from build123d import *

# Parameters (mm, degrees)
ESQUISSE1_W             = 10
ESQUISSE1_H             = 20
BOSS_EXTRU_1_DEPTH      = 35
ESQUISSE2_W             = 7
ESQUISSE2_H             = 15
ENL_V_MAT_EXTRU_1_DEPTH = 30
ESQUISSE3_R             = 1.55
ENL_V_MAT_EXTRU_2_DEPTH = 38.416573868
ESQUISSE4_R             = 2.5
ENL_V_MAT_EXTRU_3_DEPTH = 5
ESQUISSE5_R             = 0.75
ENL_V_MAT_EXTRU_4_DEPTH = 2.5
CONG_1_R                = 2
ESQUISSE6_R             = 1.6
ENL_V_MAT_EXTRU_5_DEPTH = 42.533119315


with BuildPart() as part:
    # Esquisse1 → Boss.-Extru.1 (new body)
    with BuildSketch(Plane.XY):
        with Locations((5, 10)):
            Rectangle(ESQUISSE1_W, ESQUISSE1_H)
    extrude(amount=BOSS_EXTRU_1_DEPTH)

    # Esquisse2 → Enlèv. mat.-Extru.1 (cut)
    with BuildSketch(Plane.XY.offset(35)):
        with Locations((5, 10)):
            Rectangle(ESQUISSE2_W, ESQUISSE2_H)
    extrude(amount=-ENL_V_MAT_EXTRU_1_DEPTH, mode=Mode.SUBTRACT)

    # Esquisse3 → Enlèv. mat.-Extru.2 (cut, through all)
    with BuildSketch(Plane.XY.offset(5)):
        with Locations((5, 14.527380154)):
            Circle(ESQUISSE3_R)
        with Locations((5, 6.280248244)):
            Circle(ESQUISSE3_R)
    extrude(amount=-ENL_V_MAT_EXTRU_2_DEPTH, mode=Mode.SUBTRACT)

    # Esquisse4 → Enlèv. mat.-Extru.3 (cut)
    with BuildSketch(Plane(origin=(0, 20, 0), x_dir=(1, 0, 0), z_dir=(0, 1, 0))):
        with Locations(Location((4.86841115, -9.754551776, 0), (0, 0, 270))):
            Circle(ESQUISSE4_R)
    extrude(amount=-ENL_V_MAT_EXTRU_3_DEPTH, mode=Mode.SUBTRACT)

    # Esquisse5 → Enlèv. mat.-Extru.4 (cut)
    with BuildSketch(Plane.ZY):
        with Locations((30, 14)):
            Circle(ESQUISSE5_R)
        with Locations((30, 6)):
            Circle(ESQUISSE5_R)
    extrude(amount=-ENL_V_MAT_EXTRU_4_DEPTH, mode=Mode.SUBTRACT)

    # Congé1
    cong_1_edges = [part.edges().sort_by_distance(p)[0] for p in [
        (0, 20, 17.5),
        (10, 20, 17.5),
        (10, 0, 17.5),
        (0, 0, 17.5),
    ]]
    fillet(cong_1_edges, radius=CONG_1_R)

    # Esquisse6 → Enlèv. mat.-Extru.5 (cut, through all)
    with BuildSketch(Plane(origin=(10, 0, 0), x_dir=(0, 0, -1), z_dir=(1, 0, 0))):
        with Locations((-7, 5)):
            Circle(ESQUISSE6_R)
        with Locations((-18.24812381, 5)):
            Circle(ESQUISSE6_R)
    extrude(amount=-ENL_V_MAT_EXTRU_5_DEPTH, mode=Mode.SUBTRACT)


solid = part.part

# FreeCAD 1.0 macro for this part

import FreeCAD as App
import Part
import Sketcher
Q = App.Units.Quantity


def edges_at(feature, points):
    """Names of the edges that pass closest to the given points."""
    edges = feature.Shape.Edges
    near = lambda p: min(range(len(edges)), key=lambda i: edges[i].distToShape(Part.Vertex(*p))[0])
    return sorted({f"Edge{near(p) + 1}" for p in points})

doc = App.newDocument("Part")
body = doc.addObject("PartDesign::Body", "Body")

# Sketch on XY plane
sketch1 = body.newObject("Sketcher::SketchObject", "Sketch")
sketch1.AttachmentSupport = (doc.getObject("XY_Plane"), [""])
sketch1.MapMode = "FlatFace"
sketch1.addGeometry([
    Part.LineSegment(App.Vector(0, 20, 0), App.Vector(0, 0, 0)),
    Part.LineSegment(App.Vector(0, 0, 0), App.Vector(10, 0, 0)),
    Part.LineSegment(App.Vector(10, 0, 0), App.Vector(10, 20, 0)),
    Part.LineSegment(App.Vector(10, 20, 0), App.Vector(0, 20, 0)),
], False)
sketch1.addConstraint([
    Sketcher.Constraint("Coincident", 0, 2, 1, 1),
    Sketcher.Constraint("Coincident", 1, 2, 2, 1),
    Sketcher.Constraint("Coincident", 2, 2, 3, 1),
    Sketcher.Constraint("Coincident", 3, 2, 0, 1),
    Sketcher.Constraint("Vertical", 0),
    Sketcher.Constraint("Horizontal", 1),
    Sketcher.Constraint("Vertical", 2),
    Sketcher.Constraint("Horizontal", 3),
    Sketcher.Constraint("Coincident", 0, 2, -1, 1),
    Sketcher.Constraint("DistanceX", 1, 1, 1, 2, Q("10 mm")),
    Sketcher.Constraint("DistanceY", 0, 2, 0, 1, Q("20 mm")),
])
pad1 = body.newObject("PartDesign::Pad", "Pad")
pad1.Profile = sketch1
pad1.Length = 35

# Sketch on XY plane
sketch2 = body.newObject("Sketcher::SketchObject", "Sketch001")
sketch2.AttachmentSupport = (doc.getObject("XY_Plane"), [""])
sketch2.MapMode = "FlatFace"
sketch2.AttachmentOffset = App.Placement(App.Vector(0, 0, 35), App.Rotation())
sketch2.addGeometry([
    Part.LineSegment(App.Vector(1.5, 17.5, 0), App.Vector(1.5, 2.5, 0)),
    Part.LineSegment(App.Vector(1.5, 2.5, 0), App.Vector(8.5, 2.5, 0)),
    Part.LineSegment(App.Vector(8.5, 2.5, 0), App.Vector(8.5, 17.5, 0)),
    Part.LineSegment(App.Vector(8.5, 17.5, 0), App.Vector(1.5, 17.5, 0)),
], False)
sketch2.addConstraint([
    Sketcher.Constraint("Coincident", 0, 2, 1, 1),
    Sketcher.Constraint("Coincident", 1, 2, 2, 1),
    Sketcher.Constraint("Coincident", 2, 2, 3, 1),
    Sketcher.Constraint("Coincident", 3, 2, 0, 1),
    Sketcher.Constraint("Vertical", 0),
    Sketcher.Constraint("Horizontal", 1),
    Sketcher.Constraint("Vertical", 2),
    Sketcher.Constraint("Horizontal", 3),
    Sketcher.Constraint("DistanceX", 1, 1, 1, 2, Q("7 mm")),
    Sketcher.Constraint("DistanceY", 0, 2, 0, 1, Q("15 mm")),
    Sketcher.Constraint("DistanceX", -1, 1, 0, 2, Q("1.5 mm")),
    Sketcher.Constraint("DistanceY", -1, 1, 0, 2, Q("2.5 mm")),
])
pocket1 = body.newObject("PartDesign::Pocket", "Pocket")
pocket1.Profile = sketch2
pocket1.Length = 30

# Sketch on XY plane
sketch3 = body.newObject("Sketcher::SketchObject", "Sketch002")
sketch3.AttachmentSupport = (doc.getObject("XY_Plane"), [""])
sketch3.MapMode = "FlatFace"
sketch3.AttachmentOffset = App.Placement(App.Vector(0, 0, 5), App.Rotation())
sketch3.addGeometry([
    Part.Circle(App.Vector(5, 14.52738, 0), App.Vector(0, 0, 1), 1.55),
    Part.Circle(App.Vector(5, 6.280248, 0), App.Vector(0, 0, 1), 1.55),
], False)
sketch3.addConstraint([
    Sketcher.Constraint("Equal", 0, 1),
    Sketcher.Constraint("Vertical", 0, 3, 1, 3),
    Sketcher.Constraint("Diameter", 0, Q("3.1 mm")),
    Sketcher.Constraint("DistanceX", -1, 1, 0, 3, Q("5 mm")),
    Sketcher.Constraint("DistanceY", -1, 1, 0, 3, Q("14.52738 mm")),
    Sketcher.Constraint("DistanceY", -1, 1, 1, 3, Q("6.280248 mm")),
])
pocket2 = body.newObject("PartDesign::Pocket", "Pocket001")
pocket2.Profile = sketch3
pocket2.Type = "ThroughAll"

# Sketch on XZ plane
sketch4 = body.newObject("Sketcher::SketchObject", "Sketch003")
sketch4.AttachmentSupport = (doc.getObject("XZ_Plane"), [""])
sketch4.MapMode = "FlatFace"
sketch4.AttachmentOffset = App.Placement(App.Vector(0, 0, -20), App.Rotation())
sketch4.addGeometry(Part.Circle(App.Vector(4.868411, 9.754552, 0), App.Vector(0, 0, 1), 2.5), False)
sketch4.addConstraint([
    Sketcher.Constraint("Diameter", 0, Q("5 mm")),
    Sketcher.Constraint("DistanceX", -1, 1, 0, 3, Q("4.868411 mm")),
    Sketcher.Constraint("DistanceY", -1, 1, 0, 3, Q("9.754552 mm")),
])
pocket3 = body.newObject("PartDesign::Pocket", "Pocket002")
pocket3.Profile = sketch4
pocket3.Length = 5
pocket3.Reversed = True

# Sketch on YZ plane
sketch5 = body.newObject("Sketcher::SketchObject", "Sketch004")
sketch5.AttachmentSupport = (doc.getObject("YZ_Plane"), [""])
sketch5.MapMode = "FlatFace"
sketch5.addGeometry([
    Part.Circle(App.Vector(14, 30, 0), App.Vector(0, 0, 1), 0.75),
    Part.Circle(App.Vector(6, 30, 0), App.Vector(0, 0, 1), 0.75),
], False)
sketch5.addConstraint([
    Sketcher.Constraint("Equal", 0, 1),
    Sketcher.Constraint("Horizontal", 0, 3, 1, 3),
    Sketcher.Constraint("Diameter", 0, Q("1.5 mm")),
    Sketcher.Constraint("DistanceX", -1, 1, 0, 3, Q("14 mm")),
    Sketcher.Constraint("DistanceY", -1, 1, 0, 3, Q("30 mm")),
    Sketcher.Constraint("DistanceX", -1, 1, 1, 3, Q("6 mm")),
])
pocket4 = body.newObject("PartDesign::Pocket", "Pocket003")
pocket4.Profile = sketch5
pocket4.Length = 2.5
pocket4.Reversed = True
doc.recompute()

fillet = body.newObject("PartDesign::Fillet", "Fillet")
fillet.Base = (pocket4, edges_at(pocket4, [
    (0, 20, 17.5),
    (10, 20, 17.5),
    (10, 0, 17.5),
    (0, 0, 17.5),
]))
fillet.Radius = 2

# Sketch on YZ plane
sketch6 = body.newObject("Sketcher::SketchObject", "Sketch005")
sketch6.AttachmentSupport = (doc.getObject("YZ_Plane"), [""])
sketch6.MapMode = "FlatFace"
sketch6.AttachmentOffset = App.Placement(App.Vector(0, 0, 10), App.Rotation())
sketch6.addGeometry([
    Part.Circle(App.Vector(5, 7, 0), App.Vector(0, 0, 1), 1.6),
    Part.Circle(App.Vector(5, 18.248124, 0), App.Vector(0, 0, 1), 1.6),
], False)
sketch6.addConstraint([
    Sketcher.Constraint("Equal", 0, 1),
    Sketcher.Constraint("Vertical", 0, 3, 1, 3),
    Sketcher.Constraint("Diameter", 0, Q("3.2 mm")),
    Sketcher.Constraint("DistanceX", -1, 1, 0, 3, Q("5 mm")),
    Sketcher.Constraint("DistanceY", -1, 1, 0, 3, Q("7 mm")),
    Sketcher.Constraint("DistanceY", -1, 1, 1, 3, Q("18.248124 mm")),
])
pocket5 = body.newObject("PartDesign::Pocket", "Pocket004")
pocket5.Profile = sketch6
pocket5.Type = "ThroughAll"

doc.recompute()
